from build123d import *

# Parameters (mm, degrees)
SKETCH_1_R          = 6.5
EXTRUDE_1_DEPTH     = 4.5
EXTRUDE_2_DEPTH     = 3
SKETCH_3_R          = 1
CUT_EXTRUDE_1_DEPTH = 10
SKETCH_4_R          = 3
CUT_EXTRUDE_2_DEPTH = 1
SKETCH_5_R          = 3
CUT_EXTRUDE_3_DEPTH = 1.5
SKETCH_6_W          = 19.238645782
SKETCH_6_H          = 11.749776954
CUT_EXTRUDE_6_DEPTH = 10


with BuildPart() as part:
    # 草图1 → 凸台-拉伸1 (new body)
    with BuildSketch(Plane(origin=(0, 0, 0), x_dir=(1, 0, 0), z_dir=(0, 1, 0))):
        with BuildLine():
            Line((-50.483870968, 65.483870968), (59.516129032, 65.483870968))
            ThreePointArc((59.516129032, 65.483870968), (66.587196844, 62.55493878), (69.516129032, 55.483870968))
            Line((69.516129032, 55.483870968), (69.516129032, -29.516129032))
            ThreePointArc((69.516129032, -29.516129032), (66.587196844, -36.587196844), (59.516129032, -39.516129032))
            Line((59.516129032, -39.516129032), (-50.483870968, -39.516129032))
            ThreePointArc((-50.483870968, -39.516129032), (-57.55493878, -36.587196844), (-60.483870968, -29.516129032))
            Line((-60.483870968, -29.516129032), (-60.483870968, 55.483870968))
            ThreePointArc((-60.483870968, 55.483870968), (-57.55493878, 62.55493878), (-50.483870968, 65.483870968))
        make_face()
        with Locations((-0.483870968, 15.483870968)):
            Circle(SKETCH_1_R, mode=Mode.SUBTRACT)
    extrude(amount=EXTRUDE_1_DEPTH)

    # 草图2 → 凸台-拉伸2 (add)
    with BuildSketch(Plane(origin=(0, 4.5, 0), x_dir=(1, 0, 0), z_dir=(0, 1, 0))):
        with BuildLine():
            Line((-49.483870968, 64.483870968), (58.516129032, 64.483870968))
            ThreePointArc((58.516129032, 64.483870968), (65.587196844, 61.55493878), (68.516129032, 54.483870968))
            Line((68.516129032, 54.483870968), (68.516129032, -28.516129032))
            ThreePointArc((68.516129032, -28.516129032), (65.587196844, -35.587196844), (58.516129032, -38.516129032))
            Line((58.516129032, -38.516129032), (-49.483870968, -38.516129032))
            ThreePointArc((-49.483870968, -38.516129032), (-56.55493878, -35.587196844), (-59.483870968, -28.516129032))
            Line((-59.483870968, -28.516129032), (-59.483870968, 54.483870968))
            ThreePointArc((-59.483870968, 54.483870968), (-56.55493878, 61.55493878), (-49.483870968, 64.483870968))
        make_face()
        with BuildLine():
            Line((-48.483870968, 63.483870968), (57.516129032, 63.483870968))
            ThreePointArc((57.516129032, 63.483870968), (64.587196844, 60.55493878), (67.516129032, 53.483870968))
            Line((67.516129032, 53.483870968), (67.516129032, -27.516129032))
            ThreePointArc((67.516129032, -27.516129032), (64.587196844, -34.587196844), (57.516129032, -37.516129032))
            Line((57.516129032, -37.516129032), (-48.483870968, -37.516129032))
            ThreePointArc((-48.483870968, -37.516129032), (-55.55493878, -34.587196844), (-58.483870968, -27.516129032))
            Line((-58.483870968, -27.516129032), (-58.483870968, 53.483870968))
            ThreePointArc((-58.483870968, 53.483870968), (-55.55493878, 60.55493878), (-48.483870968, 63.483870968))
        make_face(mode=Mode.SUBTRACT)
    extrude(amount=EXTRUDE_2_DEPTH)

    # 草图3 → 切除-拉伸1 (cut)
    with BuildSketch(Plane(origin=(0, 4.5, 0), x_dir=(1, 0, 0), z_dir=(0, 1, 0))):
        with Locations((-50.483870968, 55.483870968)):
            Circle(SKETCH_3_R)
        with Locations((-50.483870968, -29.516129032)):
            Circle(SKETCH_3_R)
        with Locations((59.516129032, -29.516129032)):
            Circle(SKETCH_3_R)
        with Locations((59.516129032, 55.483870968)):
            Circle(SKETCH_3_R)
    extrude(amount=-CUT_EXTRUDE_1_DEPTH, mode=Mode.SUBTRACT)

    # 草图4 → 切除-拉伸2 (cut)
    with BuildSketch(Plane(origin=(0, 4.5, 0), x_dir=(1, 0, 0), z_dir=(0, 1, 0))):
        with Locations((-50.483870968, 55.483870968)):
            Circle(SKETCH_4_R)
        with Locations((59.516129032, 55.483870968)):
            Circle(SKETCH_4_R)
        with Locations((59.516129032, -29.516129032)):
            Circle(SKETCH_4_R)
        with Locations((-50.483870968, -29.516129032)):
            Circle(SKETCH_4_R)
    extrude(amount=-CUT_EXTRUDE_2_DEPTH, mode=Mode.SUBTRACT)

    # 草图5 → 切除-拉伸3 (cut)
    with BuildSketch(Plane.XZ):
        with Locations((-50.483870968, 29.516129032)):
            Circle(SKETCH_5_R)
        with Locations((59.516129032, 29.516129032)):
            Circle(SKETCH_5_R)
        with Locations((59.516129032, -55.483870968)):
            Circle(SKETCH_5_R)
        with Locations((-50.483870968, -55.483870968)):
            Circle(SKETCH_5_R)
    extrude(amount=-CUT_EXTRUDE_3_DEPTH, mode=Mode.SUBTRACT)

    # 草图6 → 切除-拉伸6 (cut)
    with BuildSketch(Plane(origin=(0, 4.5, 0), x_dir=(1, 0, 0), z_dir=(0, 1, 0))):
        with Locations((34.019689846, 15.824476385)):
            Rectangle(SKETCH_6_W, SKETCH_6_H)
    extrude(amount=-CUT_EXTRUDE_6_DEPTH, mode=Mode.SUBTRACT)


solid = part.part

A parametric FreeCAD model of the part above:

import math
import FreeCAD as App
import Part
import Sketcher

V = App.Vector


def add_polygon(sketch, points):
    """Adds a closed chain of lines whose ends are joined by coincident constraints."""
    first, n = sketch.GeometryCount, len(points)
    for a, b in zip(points, points[1:] + points[:1]):
        sketch.addGeometry(Part.LineSegment(App.Vector(*a, 0), App.Vector(*b, 0)), False)
    for i in range(n):
        sketch.addConstraint(Sketcher.Constraint("Coincident", first + i, 2, first + (i + 1) % n, 1))

doc = App.newDocument("Part")
body = doc.addObject("PartDesign::Body", "Body")

sketch1 = body.newObject("Sketcher::SketchObject", "Sketch")
sketch1.AttachmentSupport = (doc.getObject("XZ_Plane"), [""])
sketch1.MapMode = "FlatFace"
sketch1.addGeometry([
    Part.LineSegment(V(59.516129, -65.483871, 0), V(-50.483871, -65.483871, 0)),
    Part.ArcOfCircle(Part.Circle(V(-50.483871, -55.483871, 0), V(0, 0, 1), 10), math.radians(180), math.radians(270)),
    Part.LineSegment(V(-60.483871, -55.483871, 0), V(-60.483871, 29.516129, 0)),
    Part.ArcOfCircle(Part.Circle(V(-50.483871, 29.516129, 0), V(0, 0, 1), 10), math.radians(90), math.radians(180)),
    Part.LineSegment(V(-50.483871, 39.516129, 0), V(59.516129, 39.516129, 0)),
    Part.ArcOfCircle(Part.Circle(V(59.516129, 29.516129, 0), V(0, 0, 1), 10), math.radians(0), math.radians(90)),
    Part.LineSegment(V(69.516129, 29.516129, 0), V(69.516129, -55.483871, 0)),
    Part.ArcOfCircle(Part.Circle(V(59.516129, -55.483871, 0), V(0, 0, 1), 10), math.radians(-90), math.radians(0)),
    Part.Circle(V(-0.483871, -15.483871, 0), V(0, 0, 1), 6.5),
], False)
sketch1.addConstraint([
    Sketcher.Constraint("Tangent", 0, 2, 1, 2),
    Sketcher.Constraint("Tangent", 1, 1, 2, 1),
    Sketcher.Constraint("Tangent", 2, 2, 3, 2),
    Sketcher.Constraint("Tangent", 3, 1, 4, 1),
    Sketcher.Constraint("Tangent", 4, 2, 5, 2),
    Sketcher.Constraint("Tangent", 5, 1, 6, 1),
    Sketcher.Constraint("Tangent", 6, 2, 7, 2),
    Sketcher.Constraint("Tangent", 7, 1, 0, 1),
    Sketcher.Constraint("Horizontal", 0),
    Sketcher.Constraint("Vertical", 2),
    Sketcher.Constraint("Horizontal", 4),
    Sketcher.Constraint("Vertical", 6),
    Sketcher.Constraint("Equal", 1, 3),
    Sketcher.Constraint("Equal", 3, 5),
    Sketcher.Constraint("Equal", 5, 7),
    Sketcher.Constraint("Diameter", 8, 13.0),
    Sketcher.Constraint("Radius", 1, 10.0),
    Sketcher.Constraint("DistanceX", 0, 2, 0, 1, 110.0),
    Sketcher.Constraint("DistanceY", 2, 1, 2, 2, 85.0),
    Sketcher.Constraint("DistanceX", 1, 3, 8, 3, 50.0),
    Sketcher.Constraint("DistanceY", 1, 3, 8, 3, 40.0),
    Sketcher.Constraint("DistanceX", 1, 3, -1, 1, 50.483871),
    Sketcher.Constraint("DistanceY", 1, 3, -1, 1, 55.483871),
])
pad1 = body.newObject("PartDesign::Pad", "Pad")
pad1.Profile = sketch1
pad1.Length = 4.5
pad1.Reversed = True

sketch2 = body.newObject("Sketcher::SketchObject", "Sketch001")
sketch2.AttachmentSupport = (doc.getObject("XZ_Plane"), [""])
sketch2.MapMode = "FlatFace"
sketch2.AttachmentOffset = App.Placement(V(0, 0, -4.5), App.Rotation())
sketch2.addGeometry([
    Part.LineSegment(V(58.516129, -64.483871, 0), V(-49.483871, -64.483871, 0)),
    Part.ArcOfCircle(Part.Circle(V(-49.483871, -54.483871, 0), V(0, 0, 1), 10), math.radians(180), math.radians(270)),
    Part.LineSegment(V(-59.483871, -54.483871, 0), V(-59.483871, 28.516129, 0)),
    Part.ArcOfCircle(Part.Circle(V(-49.483871, 28.516129, 0), V(0, 0, 1), 10), math.radians(90), math.radians(180)),
    Part.LineSegment(V(-49.483871, 38.516129, 0), V(58.516129, 38.516129, 0)),
    Part.ArcOfCircle(Part.Circle(V(58.516129, 28.516129, 0), V(0, 0, 1), 10), math.radians(0), math.radians(90)),
    Part.LineSegment(V(68.516129, 28.516129, 0), V(68.516129, -54.483871, 0)),
    Part.ArcOfCircle(Part.Circle(V(58.516129, -54.483871, 0), V(0, 0, 1), 10), math.radians(-90), math.radians(0)),
    Part.LineSegment(V(-48.483871, -63.483871, 0), V(57.516129, -63.483871, 0)),
    Part.ArcOfCircle(Part.Circle(V(57.516129, -53.483871, 0), V(0, 0, 1), 10), math.radians(-90), math.radians(0)),
    Part.LineSegment(V(67.516129, -53.483871, 0), V(67.516129, 27.516129, 0)),
    Part.ArcOfCircle(Part.Circle(V(57.516129, 27.516129, 0), V(0, 0, 1), 10), math.radians(0), math.radians(90)),
    Part.LineSegment(V(57.516129, 37.516129, 0), V(-48.483871, 37.516129, 0)),
    Part.ArcOfCircle(Part.Circle(V(-48.483871, 27.516129, 0), V(0, 0, 1), 10), math.radians(90), math.radians(180)),
    Part.LineSegment(V(-58.483871, 27.516129, 0), V(-58.483871, -53.483871, 0)),
    Part.ArcOfCircle(Part.Circle(V(-48.483871, -53.483871, 0), V(0, 0, 1), 10), math.radians(180), math.radians(270)),
], False)
sketch2.addConstraint([
    Sketcher.Constraint("Tangent", 0, 2, 1, 2),
    Sketcher.Constraint("Tangent", 1, 1, 2, 1),
    Sketcher.Constraint("Tangent", 2, 2, 3, 2),
    Sketcher.Constraint("Tangent", 3, 1, 4, 1),
    Sketcher.Constraint("Tangent", 4, 2, 5, 2),
    Sketcher.Constraint("Tangent", 5, 1, 6, 1),
    Sketcher.Constraint("Tangent", 6, 2, 7, 2),
    Sketcher.Constraint("Tangent", 7, 1, 0, 1),
    Sketcher.Constraint("Tangent", 8, 2, 9, 1),
    Sketcher.Constraint("Tangent", 9, 2, 10, 1),
    Sketcher.Constraint("Tangent", 10, 2, 11, 1),
    Sketcher.Constraint("Tangent", 11, 2, 12, 1),
    Sketcher.Constraint("Tangent", 12, 2, 13, 1),
    Sketcher.Constraint("Tangent", 13, 2, 14, 1),
    Sketcher.Constraint("Tangent", 14, 2, 15, 1),
    Sketcher.Constraint("Tangent", 15, 2, 8, 1),
    Sketcher.Constraint("Horizontal", 0),
    Sketcher.Constraint("Vertical", 2),
    Sketcher.Constraint("Horizontal", 4),
    Sketcher.Constraint("Vertical", 6),
    Sketcher.Constraint("Horizontal", 8),
    Sketcher.Constraint("Vertical", 10),
    Sketcher.Constraint("Horizontal", 12),
    Sketcher.Constraint("Vertical", 14),
    Sketcher.Constraint("Equal", 1, 3),
    Sketcher.Constraint("Equal", 3, 5),
    Sketcher.Constraint("Equal", 5, 7),
    Sketcher.Constraint("Equal", 7, 9),
    Sketcher.Constraint("Equal", 9, 11),
    Sketcher.Constraint("Equal", 11, 13),
    Sketcher.Constraint("Equal", 13, 15),
    Sketcher.Constraint("Radius", 1, 10.0),
    Sketcher.Constraint("DistanceX", 0, 2, 0, 1, 108.0),
    Sketcher.Constraint("DistanceX", 8, 1, 8, 2, 106.0),
    Sketcher.Constraint("DistanceY", 2, 1, 2, 2, 83.0),
    Sketcher.Constraint("DistanceY", 10, 1, 10, 2, 81.0),
    Sketcher.Constraint("DistanceX", 9, 3, 7, 3, 1.0),
    Sketcher.Constraint("DistanceY", 7, 3, 9, 3, 1.0),
    Sketcher.Constraint("DistanceX", 1, 3, -1, 1, 49.483871),
    Sketcher.Constraint("DistanceY", 1, 3, -1, 1, 54.483871),
])
pad2 = body.newObject("PartDesign::Pad", "Pad001")
pad2.Profile = sketch2
pad2.Length = 3
pad2.Reversed = True

sketch3 = body.newObject("Sketcher::SketchObject", "Sketch002")
sketch3.AttachmentSupport = (doc.getObject("XZ_Plane"), [""])
sketch3.MapMode = "FlatFace"
sketch3.AttachmentOffset = App.Placement(V(0, 0, -4.5), App.Rotation())
sketch3.addGeometry([
    Part.Circle(V(-50.483871, -55.483871, 0), V(0, 0, 1), 1),
    Part.Circle(V(-50.483871, 29.516129, 0), V(0, 0, 1), 1),
    Part.Circle(V(59.516129, 29.516129, 0), V(0, 0, 1), 1),
    Part.Circle(V(59.516129, -55.483871, 0), V(0, 0, 1), 1),
], False)
sketch3.addConstraint([
    Sketcher.Constraint("Equal", 0, 1),
    Sketcher.Constraint("Equal", 1, 2),
    Sketcher.Constraint("Equal", 2, 3),
    Sketcher.Constraint("Horizontal", 1, 3, 2, 3),
    Sketcher.Constraint("Horizontal", 0, 3, 3, 3),
    Sketcher.Constraint("Vertical", 0, 3, 1, 3),
    Sketcher.Constraint("Vertical", 2, 3, 3, 3),
    Sketcher.Constraint("Diameter", 0, 2.0),
    Sketcher.Constraint("DistanceY", 0, 3, 1, 3, 85.0),
    Sketcher.Constraint("DistanceX", 1, 3, 2, 3, 110.0),
    Sketcher.Constraint("DistanceX", 0, 3, -1, 1, 50.483871),
    Sketcher.Constraint("DistanceY", 0, 3, -1, 1, 55.483871),
])
pocket1 = body.newObject("PartDesign::Pocket", "Pocket")
pocket1.Profile = sketch3
pocket1.Length = 10
pocket1.Reversed = True

sketch4 = body.newObject("Sketcher::SketchObject", "Sketch003")
sketch4.AttachmentSupport = (doc.getObject("XZ_Plane"), [""])
sketch4.MapMode = "FlatFace"
sketch4.AttachmentOffset = App.Placement(V(0, 0, -4.5), App.Rotation())
sketch4.addGeometry([
    Part.Circle(V(-50.483871, -55.483871, 0), V(0, 0, 1), 3),
    Part.Circle(V(59.516129, -55.483871, 0), V(0, 0, 1), 3),
    Part.Circle(V(59.516129, 29.516129, 0), V(0, 0, 1), 3),
    Part.Circle(V(-50.483871, 29.516129, 0), V(0, 0, 1), 3),
], False)
sketch4.addConstraint([
    Sketcher.Constraint("Equal", 0, 1),
    Sketcher.Constraint("Equal", 1, 2),
    Sketcher.Constraint("Equal", 2, 3),
    Sketcher.Constraint("Horizontal", 0, 3, 1, 3),
    Sketcher.Constraint("Horizontal", 2, 3, 3, 3),
    Sketcher.Constraint("Vertical", 1, 3, 2, 3),
    Sketcher.Constraint("Vertical", 0, 3, 3, 3),
    Sketcher.Constraint("Diameter", 0, 6.0),
    Sketcher.Constraint("DistanceX", 0, 3, 1, 3, 110.0),
    Sketcher.Constraint("DistanceY", 1, 3, 2, 3, 85.0),
    Sketcher.Constraint("DistanceX", 0, 3, -1, 1, 50.483871),
    Sketcher.Constraint("DistanceY", 0, 3, -1, 1, 55.483871),
])
pocket2 = body.newObject("PartDesign::Pocket", "Pocket001")
pocket2.Profile = sketch4
pocket2.Length = 1
pocket2.Reversed = True

sketch5 = body.newObject("Sketcher::SketchObject", "Sketch004")
sketch5.AttachmentSupport = (doc.getObject("XZ_Plane"), [""])
sketch5.MapMode = "FlatFace"
sketch5.addGeometry([
    Part.Circle(V(-50.483871, 29.516129, 0), V(0, 0, 1), 3),
    Part.Circle(V(59.516129, 29.516129, 0), V(0, 0, 1), 3),
    Part.Circle(V(59.516129, -55.483871, 0), V(0, 0, 1), 3),
    Part.Circle(V(-50.483871, -55.483871, 0), V(0, 0, 1), 3),
], False)
sketch5.addConstraint([
    Sketcher.Constraint("Equal", 0, 1),
    Sketcher.Constraint("Equal", 1, 2),
    Sketcher.Constraint("Equal", 2, 3),
    Sketcher.Constraint("Horizontal", 0, 3, 1, 3),
    Sketcher.Constraint("Horizontal", 2, 3, 3, 3),
    Sketcher.Constraint("Vertical", 1, 3, 2, 3),
    Sketcher.Constraint("Vertical", 0, 3, 3, 3),
    Sketcher.Constraint("Diameter", 0, 6.0),
    Sketcher.Constraint("DistanceX", 0, 3, 1, 3, 110.0),
    Sketcher.Constraint("DistanceY", 2, 3, 1, 3, 85.0),
    Sketcher.Constraint("DistanceX", 0, 3, -1, 1, 50.483871),
    Sketcher.Constraint("DistanceY", -1, 1, 0, 3, 29.516129),
])
pocket3 = body.newObject("PartDesign::Pocket", "Pocket002")
pocket3.Profile = sketch5
pocket3.Length = 1.5

sketch6 = body.newObject("Sketcher::SketchObject", "Sketch005")
sketch6.AttachmentSupport = (doc.getObject("XZ_Plane"), [""])
sketch6.MapMode = "FlatFace"
sketch6.AttachmentOffset = App.Placement(V(0, 0, -4.5), App.Rotation())
add_polygon(sketch6, [(24.400367, -21.699365), (24.400367, -9.949588), (43.639013, -9.949588), (43.639013, -21.699365)])
sketch6.addConstraint([
    Sketcher.Constraint("Vertical", 0),
    Sketcher.Constraint("Horizontal", 1),
    Sketcher.Constraint("Vertical", 2),
    Sketcher.Constraint("Horizontal", 3),
    Sketcher.Constraint("DistanceX", 1, 1, 1, 2, 19.238646),
    Sketcher.Constraint("DistanceY", 0, 1, 0, 2, 11.749777),
    Sketcher.Constraint("DistanceX", -1, 1, 0, 2, 24.400367),
    Sketcher.Constraint("DistanceY", 0, 2, -1, 1, 9.949588),
])
pocket4 = body.newObject("PartDesign::Pocket", "Pocket003")
pocket4.Profile = sketch6
pocket4.Length = 10
pocket4.Reversed = True

doc.recompute()
